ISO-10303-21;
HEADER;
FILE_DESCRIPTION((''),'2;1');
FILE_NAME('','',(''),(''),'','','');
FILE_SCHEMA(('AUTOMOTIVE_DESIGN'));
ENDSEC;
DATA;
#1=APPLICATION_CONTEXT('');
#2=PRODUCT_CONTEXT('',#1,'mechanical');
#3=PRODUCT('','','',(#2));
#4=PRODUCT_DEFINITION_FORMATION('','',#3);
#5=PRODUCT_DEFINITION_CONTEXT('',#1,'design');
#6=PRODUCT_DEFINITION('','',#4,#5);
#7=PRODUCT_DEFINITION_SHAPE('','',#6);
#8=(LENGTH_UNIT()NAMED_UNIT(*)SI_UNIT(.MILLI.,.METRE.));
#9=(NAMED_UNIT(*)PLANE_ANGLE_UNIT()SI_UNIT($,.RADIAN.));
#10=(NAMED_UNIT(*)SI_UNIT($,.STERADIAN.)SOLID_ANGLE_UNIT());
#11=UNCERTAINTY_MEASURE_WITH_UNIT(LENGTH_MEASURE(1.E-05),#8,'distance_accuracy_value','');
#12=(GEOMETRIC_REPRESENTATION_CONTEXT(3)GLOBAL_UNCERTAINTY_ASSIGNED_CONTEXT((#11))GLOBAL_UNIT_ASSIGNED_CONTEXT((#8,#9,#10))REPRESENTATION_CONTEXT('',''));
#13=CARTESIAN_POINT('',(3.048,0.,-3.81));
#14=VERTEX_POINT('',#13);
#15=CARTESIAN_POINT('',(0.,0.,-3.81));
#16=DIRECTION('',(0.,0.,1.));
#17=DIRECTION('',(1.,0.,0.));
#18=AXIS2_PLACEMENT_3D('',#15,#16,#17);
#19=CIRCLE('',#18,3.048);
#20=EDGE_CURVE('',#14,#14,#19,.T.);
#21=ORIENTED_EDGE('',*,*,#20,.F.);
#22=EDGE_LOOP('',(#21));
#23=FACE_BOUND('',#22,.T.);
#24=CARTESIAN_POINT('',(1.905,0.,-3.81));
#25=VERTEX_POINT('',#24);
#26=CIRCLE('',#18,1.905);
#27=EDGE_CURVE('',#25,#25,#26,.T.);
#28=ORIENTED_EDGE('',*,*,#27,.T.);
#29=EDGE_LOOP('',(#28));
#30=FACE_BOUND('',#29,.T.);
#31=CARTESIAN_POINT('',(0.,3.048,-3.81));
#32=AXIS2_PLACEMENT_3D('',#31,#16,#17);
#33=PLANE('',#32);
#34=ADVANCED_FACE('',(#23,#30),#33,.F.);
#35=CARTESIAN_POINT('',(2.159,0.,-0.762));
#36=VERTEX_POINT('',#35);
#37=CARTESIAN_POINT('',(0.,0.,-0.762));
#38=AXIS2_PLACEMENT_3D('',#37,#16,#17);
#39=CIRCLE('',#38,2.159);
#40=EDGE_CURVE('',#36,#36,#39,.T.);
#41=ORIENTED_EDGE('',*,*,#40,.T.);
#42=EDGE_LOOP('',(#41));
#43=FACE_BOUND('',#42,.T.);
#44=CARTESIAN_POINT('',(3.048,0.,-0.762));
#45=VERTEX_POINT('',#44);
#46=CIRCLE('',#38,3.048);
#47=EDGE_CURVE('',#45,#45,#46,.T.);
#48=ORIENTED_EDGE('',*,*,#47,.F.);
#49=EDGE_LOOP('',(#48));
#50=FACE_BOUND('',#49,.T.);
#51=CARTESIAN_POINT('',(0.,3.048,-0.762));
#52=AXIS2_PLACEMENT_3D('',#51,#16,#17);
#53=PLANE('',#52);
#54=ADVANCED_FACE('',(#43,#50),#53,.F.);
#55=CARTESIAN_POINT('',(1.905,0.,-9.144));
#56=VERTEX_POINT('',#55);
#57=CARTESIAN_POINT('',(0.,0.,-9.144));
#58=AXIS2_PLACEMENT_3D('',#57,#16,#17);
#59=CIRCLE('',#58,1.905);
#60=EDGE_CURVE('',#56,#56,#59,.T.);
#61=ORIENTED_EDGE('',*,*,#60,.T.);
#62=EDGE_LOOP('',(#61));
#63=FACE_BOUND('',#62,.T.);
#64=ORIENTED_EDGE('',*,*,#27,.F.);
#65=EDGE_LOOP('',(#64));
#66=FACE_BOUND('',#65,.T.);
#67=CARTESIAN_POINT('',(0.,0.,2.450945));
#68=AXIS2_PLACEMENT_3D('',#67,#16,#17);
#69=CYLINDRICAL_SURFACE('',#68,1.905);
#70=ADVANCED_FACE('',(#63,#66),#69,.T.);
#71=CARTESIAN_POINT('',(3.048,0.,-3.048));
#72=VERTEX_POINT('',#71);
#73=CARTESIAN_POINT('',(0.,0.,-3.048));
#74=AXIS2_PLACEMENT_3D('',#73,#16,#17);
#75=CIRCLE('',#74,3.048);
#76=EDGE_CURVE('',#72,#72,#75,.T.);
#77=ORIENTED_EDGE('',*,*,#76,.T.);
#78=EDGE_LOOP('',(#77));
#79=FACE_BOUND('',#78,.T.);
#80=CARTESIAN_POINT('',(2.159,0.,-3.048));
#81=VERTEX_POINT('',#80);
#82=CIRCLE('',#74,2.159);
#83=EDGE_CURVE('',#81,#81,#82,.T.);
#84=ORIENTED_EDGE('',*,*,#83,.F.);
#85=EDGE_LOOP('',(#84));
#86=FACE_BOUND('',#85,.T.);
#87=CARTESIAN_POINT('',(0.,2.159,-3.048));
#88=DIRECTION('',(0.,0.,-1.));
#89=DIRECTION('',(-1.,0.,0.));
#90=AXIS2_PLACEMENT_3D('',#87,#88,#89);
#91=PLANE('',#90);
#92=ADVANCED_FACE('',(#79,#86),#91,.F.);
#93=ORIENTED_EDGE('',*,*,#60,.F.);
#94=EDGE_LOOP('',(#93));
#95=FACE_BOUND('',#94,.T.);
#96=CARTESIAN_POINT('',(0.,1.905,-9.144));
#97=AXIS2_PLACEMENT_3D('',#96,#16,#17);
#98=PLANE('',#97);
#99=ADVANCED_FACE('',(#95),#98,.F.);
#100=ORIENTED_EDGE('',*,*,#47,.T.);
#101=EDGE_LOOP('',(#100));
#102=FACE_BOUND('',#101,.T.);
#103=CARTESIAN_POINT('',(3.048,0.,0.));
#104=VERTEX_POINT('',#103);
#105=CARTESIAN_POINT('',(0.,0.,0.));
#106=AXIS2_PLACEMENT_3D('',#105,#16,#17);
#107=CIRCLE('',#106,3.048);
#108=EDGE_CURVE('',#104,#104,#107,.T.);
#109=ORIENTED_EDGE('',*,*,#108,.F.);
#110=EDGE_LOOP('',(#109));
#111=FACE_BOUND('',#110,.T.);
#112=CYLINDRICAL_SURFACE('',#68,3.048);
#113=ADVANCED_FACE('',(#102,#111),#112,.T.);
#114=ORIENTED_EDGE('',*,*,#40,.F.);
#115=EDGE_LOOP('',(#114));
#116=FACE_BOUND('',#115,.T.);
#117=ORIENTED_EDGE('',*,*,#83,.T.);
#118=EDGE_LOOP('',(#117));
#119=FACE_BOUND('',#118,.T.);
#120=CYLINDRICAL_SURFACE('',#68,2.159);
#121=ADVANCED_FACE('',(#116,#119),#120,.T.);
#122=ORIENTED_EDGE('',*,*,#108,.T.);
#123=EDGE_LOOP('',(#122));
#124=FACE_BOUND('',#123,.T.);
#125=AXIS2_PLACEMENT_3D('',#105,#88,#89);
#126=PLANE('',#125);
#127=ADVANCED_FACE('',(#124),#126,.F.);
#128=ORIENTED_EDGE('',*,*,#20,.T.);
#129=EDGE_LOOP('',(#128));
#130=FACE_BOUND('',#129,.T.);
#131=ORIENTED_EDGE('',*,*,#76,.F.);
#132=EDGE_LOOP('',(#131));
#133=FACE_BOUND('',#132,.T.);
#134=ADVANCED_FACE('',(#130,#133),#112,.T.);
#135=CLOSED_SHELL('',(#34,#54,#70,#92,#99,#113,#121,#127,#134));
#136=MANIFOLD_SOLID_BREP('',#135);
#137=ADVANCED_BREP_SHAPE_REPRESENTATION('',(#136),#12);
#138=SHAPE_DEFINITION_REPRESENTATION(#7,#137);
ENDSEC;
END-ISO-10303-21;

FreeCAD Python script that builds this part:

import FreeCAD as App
import Part
import Sketcher

V = App.Vector
Q = App.Units.Quantity

doc = App.newDocument("Part")
body = doc.addObject("PartDesign::Body", "Body")

# Sketch on YZ plane
sketch1 = doc.addObject("Sketcher::SketchObject", "Sketch")
body.addObject(sketch1)
sketch1.AttachmentSupport = (doc.YZ_Plane, [""])
sketch1.MapMode = "FlatFace"
sketch1.addGeometry(Part.LineSegment(V(3.048, 0, 0), V(0, 0, 0)), False)
sketch1.addGeometry(Part.LineSegment(V(0, 0, 0), V(0, -9.144, 0)), False)
sketch1.addGeometry(Part.LineSegment(V(0, -9.144, 0), V(1.905, -9.144, 0)), False)
sketch1.addGeometry(Part.LineSegment(V(1.905, -9.144, 0), V(1.905, -3.81, 0)), False)
sketch1.addGeometry(Part.LineSegment(V(1.905, -3.81, 0), V(3.048, -3.81, 0)), False)
sketch1.addGeometry(Part.LineSegment(V(3.048, -3.81, 0), V(3.048, -3.048, 0)), False)
sketch1.addGeometry(Part.LineSegment(V(3.048, -3.048, 0), V(2.159, -3.048, 0)), False)
sketch1.addGeometry(Part.LineSegment(V(2.159, -3.048, 0), V(2.159, -0.762, 0)), False)
sketch1.addGeometry(Part.LineSegment(V(2.159, -0.762, 0), V(3.048, -0.762, 0)), False)
sketch1.addGeometry(Part.LineSegment(V(3.048, -0.762, 0), V(3.048, 0, 0)), False)
sketch1.addConstraint(Sketcher.Constraint("Coincident", 0, 2, 1, 1))
sketch1.addConstraint(Sketcher.Constraint("Coincident", 1, 2, 2, 1))
sketch1.addConstraint(Sketcher.Constraint("Coincident", 2, 2, 3, 1))
sketch1.addConstraint(Sketcher.Constraint("Coincident", 3, 2, 4, 1))
sketch1.addConstraint(Sketcher.Constraint("Coincident", 4, 2, 5, 1))
sketch1.addConstraint(Sketcher.Constraint("Coincident", 5, 2, 6, 1))
sketch1.addConstraint(Sketcher.Constraint("Coincident", 6, 2, 7, 1))
sketch1.addConstraint(Sketcher.Constraint("Coincident", 7, 2, 8, 1))
sketch1.addConstraint(Sketcher.Constraint("Coincident", 8, 2, 9, 1))
sketch1.addConstraint(Sketcher.Constraint("Coincident", 9, 2, 0, 1))
sketch1.addConstraint(Sketcher.Constraint("Horizontal", 0))
sketch1.addConstraint(Sketcher.Constraint("Vertical", 1))
sketch1.addConstraint(Sketcher.Constraint("Horizontal", 2))
sketch1.addConstraint(Sketcher.Constraint("Vertical", 3))
sketch1.addConstraint(Sketcher.Constraint("Horizontal", 4))
sketch1.addConstraint(Sketcher.Constraint("Vertical", 5))
sketch1.addConstraint(Sketcher.Constraint("Horizontal", 6))
sketch1.addConstraint(Sketcher.Constraint("Vertical", 7))
sketch1.addConstraint(Sketcher.Constraint("Horizontal", 8))
sketch1.addConstraint(Sketcher.Constraint("Vertical", 9))
sketch1.addConstraint(Sketcher.Constraint("Coincident", 0, 2, -1, 1))
sketch1.addConstraint(Sketcher.Constraint("Vertical", 5, 2, 8, 2))
sketch1.addConstraint(Sketcher.Constraint("Equal", 5, 9))
sketch1.addConstraint(Sketcher.Constraint("DistanceX", 0, 2, 0, 1, Q("0.12 in")))
sketch1.addConstraint(Sketcher.Constraint("DistanceY", 1, 2, 1, 1, Q("0.36 in")))
sketch1.addConstraint(Sketcher.Constraint("DistanceY", 3, 1, 3, 2, Q("0.21 in")))
sketch1.addConstraint(Sketcher.Constraint("DistanceY", 5, 1, 5, 2, Q("0.03 in")))
sketch1.addConstraint(Sketcher.Constraint("DistanceX", 2, 1, 2, 2, Q("0.075 in")))
sketch1.addConstraint(Sketcher.Constraint("DistanceX", 6, 2, 6, 1, Q("0.035 in")))
revolution = doc.addObject("PartDesign::Revolution", "Revolution")
body.addObject(revolution)
revolution.Profile = sketch1
revolution.ReferenceAxis = (sketch1, ["V_Axis"])
revolution.Angle = 360

doc.recompute()
